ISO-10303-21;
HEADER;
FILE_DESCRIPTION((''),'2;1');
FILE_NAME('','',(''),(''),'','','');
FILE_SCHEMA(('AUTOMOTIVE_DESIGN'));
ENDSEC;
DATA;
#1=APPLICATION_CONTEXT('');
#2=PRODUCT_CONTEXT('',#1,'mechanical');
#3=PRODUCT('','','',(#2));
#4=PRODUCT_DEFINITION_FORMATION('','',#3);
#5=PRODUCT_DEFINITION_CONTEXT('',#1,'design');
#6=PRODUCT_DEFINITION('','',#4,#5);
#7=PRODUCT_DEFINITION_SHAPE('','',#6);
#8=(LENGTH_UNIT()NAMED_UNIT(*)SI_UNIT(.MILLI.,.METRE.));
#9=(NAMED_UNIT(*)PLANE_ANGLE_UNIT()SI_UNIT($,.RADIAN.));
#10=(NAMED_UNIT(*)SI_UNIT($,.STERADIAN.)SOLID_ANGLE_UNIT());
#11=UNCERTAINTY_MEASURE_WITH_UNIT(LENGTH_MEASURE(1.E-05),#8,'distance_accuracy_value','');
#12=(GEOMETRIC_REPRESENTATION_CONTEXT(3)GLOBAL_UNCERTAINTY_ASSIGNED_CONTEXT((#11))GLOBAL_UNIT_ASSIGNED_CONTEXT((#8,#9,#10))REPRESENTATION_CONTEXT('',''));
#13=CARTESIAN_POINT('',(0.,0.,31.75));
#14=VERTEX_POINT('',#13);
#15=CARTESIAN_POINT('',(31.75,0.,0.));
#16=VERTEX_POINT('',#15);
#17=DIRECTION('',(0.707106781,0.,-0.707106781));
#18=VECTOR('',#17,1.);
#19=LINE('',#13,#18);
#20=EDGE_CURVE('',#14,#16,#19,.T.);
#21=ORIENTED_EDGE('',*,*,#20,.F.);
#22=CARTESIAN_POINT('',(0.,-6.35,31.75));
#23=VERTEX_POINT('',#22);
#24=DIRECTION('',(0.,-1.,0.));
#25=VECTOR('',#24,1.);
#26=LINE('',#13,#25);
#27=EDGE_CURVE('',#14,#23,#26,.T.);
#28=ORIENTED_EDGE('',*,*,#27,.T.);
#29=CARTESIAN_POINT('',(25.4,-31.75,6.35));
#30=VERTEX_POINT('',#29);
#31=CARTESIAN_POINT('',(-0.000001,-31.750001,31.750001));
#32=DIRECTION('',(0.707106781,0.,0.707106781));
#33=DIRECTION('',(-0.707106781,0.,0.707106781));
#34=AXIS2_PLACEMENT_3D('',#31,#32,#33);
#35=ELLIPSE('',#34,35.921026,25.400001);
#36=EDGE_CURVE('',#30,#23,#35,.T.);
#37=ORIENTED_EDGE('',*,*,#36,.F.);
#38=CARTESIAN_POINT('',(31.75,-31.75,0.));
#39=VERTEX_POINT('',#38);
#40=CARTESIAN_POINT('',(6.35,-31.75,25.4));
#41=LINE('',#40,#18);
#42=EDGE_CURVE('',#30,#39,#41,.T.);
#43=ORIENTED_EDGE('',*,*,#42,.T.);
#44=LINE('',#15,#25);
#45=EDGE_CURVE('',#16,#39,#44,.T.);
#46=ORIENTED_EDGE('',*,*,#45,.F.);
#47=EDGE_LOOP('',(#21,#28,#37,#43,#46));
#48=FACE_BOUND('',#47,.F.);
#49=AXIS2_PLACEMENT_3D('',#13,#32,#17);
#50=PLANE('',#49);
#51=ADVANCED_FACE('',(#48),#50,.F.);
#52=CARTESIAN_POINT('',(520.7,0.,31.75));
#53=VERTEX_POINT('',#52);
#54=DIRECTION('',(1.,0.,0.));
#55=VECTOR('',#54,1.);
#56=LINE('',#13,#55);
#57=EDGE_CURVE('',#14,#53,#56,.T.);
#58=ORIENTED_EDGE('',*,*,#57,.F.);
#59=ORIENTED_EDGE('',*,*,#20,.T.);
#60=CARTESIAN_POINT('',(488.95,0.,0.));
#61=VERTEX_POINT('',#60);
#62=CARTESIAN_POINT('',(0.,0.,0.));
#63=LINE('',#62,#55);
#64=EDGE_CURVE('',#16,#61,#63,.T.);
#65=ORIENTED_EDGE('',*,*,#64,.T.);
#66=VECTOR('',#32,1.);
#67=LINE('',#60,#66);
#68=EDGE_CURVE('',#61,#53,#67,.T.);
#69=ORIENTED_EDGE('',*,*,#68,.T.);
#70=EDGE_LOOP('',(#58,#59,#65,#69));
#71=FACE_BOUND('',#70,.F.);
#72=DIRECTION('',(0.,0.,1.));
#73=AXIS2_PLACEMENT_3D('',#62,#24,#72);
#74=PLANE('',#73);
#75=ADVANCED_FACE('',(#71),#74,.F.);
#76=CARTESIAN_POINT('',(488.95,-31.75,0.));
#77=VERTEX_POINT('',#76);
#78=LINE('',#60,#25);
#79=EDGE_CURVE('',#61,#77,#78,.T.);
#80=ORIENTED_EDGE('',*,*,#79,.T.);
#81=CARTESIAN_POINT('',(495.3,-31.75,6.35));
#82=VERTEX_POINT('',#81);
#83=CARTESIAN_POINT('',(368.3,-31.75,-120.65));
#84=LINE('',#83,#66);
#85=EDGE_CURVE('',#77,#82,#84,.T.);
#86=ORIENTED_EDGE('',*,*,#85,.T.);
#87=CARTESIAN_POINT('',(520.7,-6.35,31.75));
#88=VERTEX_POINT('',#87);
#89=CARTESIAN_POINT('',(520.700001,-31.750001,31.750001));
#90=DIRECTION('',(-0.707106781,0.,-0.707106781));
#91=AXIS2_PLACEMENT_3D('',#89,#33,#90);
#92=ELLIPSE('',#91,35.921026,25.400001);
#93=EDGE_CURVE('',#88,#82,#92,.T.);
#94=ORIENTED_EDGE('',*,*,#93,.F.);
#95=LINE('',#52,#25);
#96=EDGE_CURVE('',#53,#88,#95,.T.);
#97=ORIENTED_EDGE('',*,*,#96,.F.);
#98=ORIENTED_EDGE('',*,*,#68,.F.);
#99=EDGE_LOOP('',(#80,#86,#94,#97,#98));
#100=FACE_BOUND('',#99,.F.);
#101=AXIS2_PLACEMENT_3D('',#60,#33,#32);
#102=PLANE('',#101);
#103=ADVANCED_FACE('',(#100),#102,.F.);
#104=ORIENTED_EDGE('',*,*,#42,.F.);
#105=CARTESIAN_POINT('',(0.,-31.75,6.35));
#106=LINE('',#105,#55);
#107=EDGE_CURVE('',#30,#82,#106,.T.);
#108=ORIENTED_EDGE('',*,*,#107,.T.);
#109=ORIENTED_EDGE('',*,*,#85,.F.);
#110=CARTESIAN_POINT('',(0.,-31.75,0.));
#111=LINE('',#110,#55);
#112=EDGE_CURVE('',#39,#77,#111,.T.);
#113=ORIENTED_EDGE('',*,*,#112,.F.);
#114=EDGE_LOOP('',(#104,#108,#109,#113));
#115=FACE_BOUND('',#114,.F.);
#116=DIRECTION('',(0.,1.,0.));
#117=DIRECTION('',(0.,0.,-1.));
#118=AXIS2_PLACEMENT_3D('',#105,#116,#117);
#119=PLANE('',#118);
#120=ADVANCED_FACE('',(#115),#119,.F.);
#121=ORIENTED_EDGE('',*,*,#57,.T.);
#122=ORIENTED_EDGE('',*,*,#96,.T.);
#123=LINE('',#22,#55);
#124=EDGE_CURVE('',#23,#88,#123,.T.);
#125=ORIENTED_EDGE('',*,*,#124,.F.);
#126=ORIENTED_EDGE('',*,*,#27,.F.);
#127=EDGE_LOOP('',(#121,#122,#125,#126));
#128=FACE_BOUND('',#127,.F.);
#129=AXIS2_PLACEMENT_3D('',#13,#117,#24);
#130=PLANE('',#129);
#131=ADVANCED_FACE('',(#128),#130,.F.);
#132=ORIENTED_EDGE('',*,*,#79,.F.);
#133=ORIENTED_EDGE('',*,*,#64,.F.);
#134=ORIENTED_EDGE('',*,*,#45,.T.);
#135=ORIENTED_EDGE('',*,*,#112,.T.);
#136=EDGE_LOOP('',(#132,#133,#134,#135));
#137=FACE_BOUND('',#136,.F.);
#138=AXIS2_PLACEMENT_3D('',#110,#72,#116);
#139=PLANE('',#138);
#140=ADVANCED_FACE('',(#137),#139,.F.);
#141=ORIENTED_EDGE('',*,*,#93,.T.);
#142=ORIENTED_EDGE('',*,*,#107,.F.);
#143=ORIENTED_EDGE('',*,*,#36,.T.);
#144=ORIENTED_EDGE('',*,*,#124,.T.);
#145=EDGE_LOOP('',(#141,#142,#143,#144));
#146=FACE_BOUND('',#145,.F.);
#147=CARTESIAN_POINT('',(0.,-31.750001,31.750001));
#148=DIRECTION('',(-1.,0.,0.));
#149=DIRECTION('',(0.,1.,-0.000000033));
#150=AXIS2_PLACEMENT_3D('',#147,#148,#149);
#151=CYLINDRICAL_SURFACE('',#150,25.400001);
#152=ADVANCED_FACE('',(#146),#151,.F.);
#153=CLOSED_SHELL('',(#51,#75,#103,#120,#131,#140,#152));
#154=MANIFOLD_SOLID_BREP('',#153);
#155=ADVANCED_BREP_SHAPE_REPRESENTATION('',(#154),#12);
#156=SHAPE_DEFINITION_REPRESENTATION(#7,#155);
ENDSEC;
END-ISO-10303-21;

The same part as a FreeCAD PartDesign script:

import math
import FreeCAD as App
import Part
import Sketcher

V = App.Vector
Q = App.Units.Quantity


def add_polygon(sketch, points):
    """Adds a closed chain of lines whose ends are joined by coincident constraints."""
    first, n = sketch.GeometryCount, len(points)
    for a, b in zip(points, points[1:] + points[:1]):
        sketch.addGeometry(Part.LineSegment(App.Vector(*a, 0), App.Vector(*b, 0)), False)
    for i in range(n):
        sketch.addConstraint(Sketcher.Constraint("Coincident", first + i, 2, first + (i + 1) % n, 1))

doc = App.newDocument("Part")
body = doc.addObject("PartDesign::Body", "Body")

# Sketch on YZ plane
sketch1 = doc.addObject("Sketcher::SketchObject", "Sketch")
body.addObject(sketch1)
sketch1.AttachmentSupport = (doc.YZ_Plane, [""])
sketch1.MapMode = "FlatFace"
sketch1.addGeometry(Part.LineSegment(V(-32, 0, 0), V(0, 0, 0)), False)
sketch1.addGeometry(Part.LineSegment(V(0, 0, 0), V(0, 32, 0)), False)
sketch1.addGeometry(Part.LineSegment(V(0, 32, 0), V(-6, 32, 0)), False)
sketch1.addGeometry(Part.ArcOfCircle(Part.Circle(V(-32, 32, 0), V(0, 0, 1), 25), math.radians(-90), math.radians(0)), False)
sketch1.addGeometry(Part.LineSegment(V(-32, 6, 0), V(-32, 0, 0)), False)
sketch1.addConstraint(Sketcher.Constraint("Coincident", 0, 2, 1, 1))
sketch1.addConstraint(Sketcher.Constraint("Coincident", 1, 2, 2, 1))
sketch1.addConstraint(Sketcher.Constraint("Coincident", 2, 2, 3, 2))
sketch1.addConstraint(Sketcher.Constraint("Coincident", 3, 1, 4, 1))
sketch1.addConstraint(Sketcher.Constraint("Coincident", 4, 2, 0, 1))
sketch1.addConstraint(Sketcher.Constraint("Horizontal", 0))
sketch1.addConstraint(Sketcher.Constraint("Vertical", 1))
sketch1.addConstraint(Sketcher.Constraint("Horizontal", 2))
sketch1.addConstraint(Sketcher.Constraint("Vertical", 4))
sketch1.addConstraint(Sketcher.Constraint("Coincident", 0, 2, -1, 1))
sketch1.addConstraint(Sketcher.Constraint("Horizontal", 3, 3, 1, 2))
sketch1.addConstraint(Sketcher.Constraint("Equal", 0, 1))
sketch1.addConstraint(Sketcher.Constraint("Equal", 2, 4))
sketch1.addConstraint(Sketcher.Constraint("Radius", 3, Q("1 in")))
sketch1.addConstraint(Sketcher.Constraint("DistanceX", 0, 1, 0, 2, Q("1.25 in")))
pad1 = doc.addObject("PartDesign::Pad", "Pad")
body.addObject(pad1)
pad1.Profile = sketch1
pad1.Length = Q("20.5 in")

# Sketch on XZ plane
sketch2 = doc.addObject("Sketcher::SketchObject", "Sketch001")
body.addObject(sketch2)
sketch2.AttachmentSupport = (doc.XZ_Plane, [""])
sketch2.MapMode = "FlatFace"
add_polygon(sketch2, [(0, 0), (0, 32), (32, 0)])  # lines 0-2
add_polygon(sketch2, [(489, 0), (521, 32), (521, 0)])  # lines 3-5
sketch2.addConstraint(Sketcher.Constraint("Vertical", 0))
sketch2.addConstraint(Sketcher.Constraint("Horizontal", 2))
sketch2.addConstraint(Sketcher.Constraint("Vertical", 4))
sketch2.addConstraint(Sketcher.Constraint("Horizontal", 5))
sketch2.addConstraint(Sketcher.Constraint("Coincident", 2, 2, -1, 1))
sketch2.addConstraint(Sketcher.Constraint("PointOnObject", 4, 2, -1))
sketch2.addConstraint(Sketcher.Constraint("Perpendicular", 1, 3))
sketch2.addConstraint(Sketcher.Constraint("Horizontal", 0, 2, 3, 2))
sketch2.addConstraint(Sketcher.Constraint("Equal", 2, 5))
sketch2.addConstraint(Sketcher.Constraint("DistanceX", 1, 2, 5, 2, Q("18 in")))
sketch2.addConstraint(Sketcher.Constraint("DistanceX", 2, 2, 2, 1, Q("1.25 in")))
pocket1 = doc.addObject("PartDesign::Pocket", "Pocket")
body.addObject(pocket1)
pocket1.Profile = sketch2
pocket1.Length = Q("2 in")
pocket1.Reversed = True

doc.recompute()
